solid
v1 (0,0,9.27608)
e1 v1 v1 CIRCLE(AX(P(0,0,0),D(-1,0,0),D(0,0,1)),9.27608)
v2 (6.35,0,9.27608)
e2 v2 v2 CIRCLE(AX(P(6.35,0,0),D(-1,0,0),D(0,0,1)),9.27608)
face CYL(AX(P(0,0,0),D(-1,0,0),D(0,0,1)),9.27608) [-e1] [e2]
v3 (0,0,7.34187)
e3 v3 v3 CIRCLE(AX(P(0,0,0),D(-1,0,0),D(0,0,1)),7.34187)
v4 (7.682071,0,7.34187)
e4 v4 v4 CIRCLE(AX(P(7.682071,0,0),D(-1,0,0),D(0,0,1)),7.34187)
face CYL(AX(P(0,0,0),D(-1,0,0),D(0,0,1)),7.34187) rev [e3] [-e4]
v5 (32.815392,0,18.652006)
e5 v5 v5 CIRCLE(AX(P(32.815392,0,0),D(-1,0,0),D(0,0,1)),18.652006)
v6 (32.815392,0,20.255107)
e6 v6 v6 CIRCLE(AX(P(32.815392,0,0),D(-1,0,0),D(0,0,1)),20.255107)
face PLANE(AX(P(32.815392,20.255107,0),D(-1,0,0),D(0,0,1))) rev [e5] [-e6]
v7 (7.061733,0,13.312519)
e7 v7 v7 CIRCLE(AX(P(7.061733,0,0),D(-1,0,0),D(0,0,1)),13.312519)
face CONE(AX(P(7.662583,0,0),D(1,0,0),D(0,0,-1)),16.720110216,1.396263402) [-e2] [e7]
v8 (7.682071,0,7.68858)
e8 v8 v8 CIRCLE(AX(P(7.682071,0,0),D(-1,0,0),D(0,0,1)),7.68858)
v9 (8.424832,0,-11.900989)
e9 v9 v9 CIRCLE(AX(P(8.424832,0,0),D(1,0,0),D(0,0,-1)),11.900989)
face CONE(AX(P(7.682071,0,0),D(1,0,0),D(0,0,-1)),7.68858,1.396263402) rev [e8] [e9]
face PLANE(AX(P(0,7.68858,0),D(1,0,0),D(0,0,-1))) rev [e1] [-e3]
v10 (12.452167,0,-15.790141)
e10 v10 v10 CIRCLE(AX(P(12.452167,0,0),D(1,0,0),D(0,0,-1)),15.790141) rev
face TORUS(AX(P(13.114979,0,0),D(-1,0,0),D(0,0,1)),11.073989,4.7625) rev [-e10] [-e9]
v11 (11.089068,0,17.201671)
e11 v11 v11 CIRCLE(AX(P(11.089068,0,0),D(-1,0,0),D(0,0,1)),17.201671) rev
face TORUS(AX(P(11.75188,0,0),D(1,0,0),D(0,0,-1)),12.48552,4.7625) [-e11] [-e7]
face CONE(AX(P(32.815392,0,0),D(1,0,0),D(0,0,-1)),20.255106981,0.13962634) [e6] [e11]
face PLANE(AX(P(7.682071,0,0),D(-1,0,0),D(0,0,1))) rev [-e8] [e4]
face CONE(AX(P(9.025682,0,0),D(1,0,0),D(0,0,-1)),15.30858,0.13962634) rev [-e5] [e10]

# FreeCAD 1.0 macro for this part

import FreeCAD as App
import Part
import Sketcher

V = App.Vector
Q = App.Units.Quantity


def edges_at(feature, points):
    """Names of the edges that pass closest to the given points."""
    edges = feature.Shape.Edges
    near = lambda p: min(range(len(edges)), key=lambda i: edges[i].distToShape(Part.Vertex(*p))[0])
    return sorted({f"Edge{near(p) + 1}" for p in points})


def add_polygon(sketch, points):
    """Adds a closed chain of lines whose ends are joined by coincident constraints."""
    first, n = sketch.GeometryCount, len(points)
    for a, b in zip(points, points[1:] + points[:1]):
        sketch.addGeometry(Part.LineSegment(App.Vector(*a, 0), App.Vector(*b, 0)), False)
    for i in range(n):
        sketch.addConstraint(Sketcher.Constraint("Coincident", first + i, 2, first + (i + 1) % n, 1))

doc = App.newDocument("Part")
body = doc.addObject("PartDesign::Body", "Body")

# Sketch on XY plane
sketch1 = body.newObject("Sketcher::SketchObject", "Sketch")
sketch1.AttachmentSupport = (doc.getObject("XY_Plane"), [""])
sketch1.MapMode = "FlatFace"
add_polygon(sketch1, [(6.3, 9.3), (0, 9.3), (0, 0), (7.7, 0), (7.7, 7.7), (9, 15.3), (32.8, 18.7), (32.8, 20.3), (7.7, 16.7)])  # lines 0-8
sketch1.addConstraint(Sketcher.Constraint("Horizontal", 0))
sketch1.addConstraint(Sketcher.Constraint("Vertical", 1))
sketch1.addConstraint(Sketcher.Constraint("Horizontal", 2))
sketch1.addConstraint(Sketcher.Constraint("Vertical", 3))
sketch1.addConstraint(Sketcher.Constraint("Vertical", 6))
sketch1.addConstraint(Sketcher.Constraint("Coincident", 1, 2, -1, 1))
sketch1.addConstraint(Sketcher.Constraint("Parallel", 5, 7))
sketch1.addConstraint(Sketcher.Constraint("Parallel", 4, 8))
sketch1.addConstraint(Sketcher.Constraint("Distance", 7, Q("1 in")))
sketch1.addConstraint(Sketcher.Constraint("Angle", 4, Q("80 deg")))
sketch1.addConstraint(Sketcher.Constraint("Angle", 5, Q("8 deg")))
sketch1.addConstraint(Sketcher.Constraint("DistanceX", 0, 2, 0, 1, Q("0.25 in")))
sketch1.addConstraint(Sketcher.Constraint("DistanceY", 3, 2, 4, 2, Q("0.3 in")))
sketch1.addConstraint(Sketcher.Constraint("DistanceY", 1, 2, 1, 1, Q("0.3652 in")))
sketch1.addConstraint(Sketcher.Constraint("DistanceY", 3, 1, 3, 2, Q("0.3027 in")))
sketch1.addConstraint(Sketcher.Constraint("DistanceY", 6, 1, 6, 2, Q("1.603101 mm")))
sketch1.addConstraint(Sketcher.Constraint("DistanceX", 2, 1, 2, 2, Q("7.682071 mm")))
revolution = body.newObject("PartDesign::Revolution", "Revolution")
revolution.Profile = sketch1
revolution.ReferenceAxis = (sketch1, ["H_Axis"])
revolution.Angle = 360

# Sketch on YZ plane
sketch2 = body.newObject("Sketcher::SketchObject", "Sketch001")
sketch2.AttachmentSupport = (doc.getObject("YZ_Plane"), [""])
sketch2.MapMode = "FlatFace"
sketch2.addGeometry(Part.Circle(V(0, 0, 0), V(0, 0, 1), 7), False)
sketch2.addConstraint(Sketcher.Constraint("Coincident", 0, 3, -1, 1))
sketch2.addConstraint(Sketcher.Constraint("Diameter", 0, Q("0.5781 in")))
doc.recompute()
hole = body.newObject("PartDesign::Hole", "Hole")
hole.Profile = sketch2
hole.ThreadType = "None"
hole.Diameter = Q("0.5781 in")
hole.DepthType = "Dimension"
hole.Depth = Q("1.06 in")
hole.DrillPoint = "Angled"
hole.DrillPointAngle = 118
hole.Reversed = True
doc.recompute()

fillet = body.newObject("PartDesign::Fillet", "Fillet")
fillet.Base = (hole, edges_at(hole, [(9.026, 0, -15.309), (7.663, 0, -16.72)]))
fillet.Radius = Q("0.1875 in")

doc.recompute()
